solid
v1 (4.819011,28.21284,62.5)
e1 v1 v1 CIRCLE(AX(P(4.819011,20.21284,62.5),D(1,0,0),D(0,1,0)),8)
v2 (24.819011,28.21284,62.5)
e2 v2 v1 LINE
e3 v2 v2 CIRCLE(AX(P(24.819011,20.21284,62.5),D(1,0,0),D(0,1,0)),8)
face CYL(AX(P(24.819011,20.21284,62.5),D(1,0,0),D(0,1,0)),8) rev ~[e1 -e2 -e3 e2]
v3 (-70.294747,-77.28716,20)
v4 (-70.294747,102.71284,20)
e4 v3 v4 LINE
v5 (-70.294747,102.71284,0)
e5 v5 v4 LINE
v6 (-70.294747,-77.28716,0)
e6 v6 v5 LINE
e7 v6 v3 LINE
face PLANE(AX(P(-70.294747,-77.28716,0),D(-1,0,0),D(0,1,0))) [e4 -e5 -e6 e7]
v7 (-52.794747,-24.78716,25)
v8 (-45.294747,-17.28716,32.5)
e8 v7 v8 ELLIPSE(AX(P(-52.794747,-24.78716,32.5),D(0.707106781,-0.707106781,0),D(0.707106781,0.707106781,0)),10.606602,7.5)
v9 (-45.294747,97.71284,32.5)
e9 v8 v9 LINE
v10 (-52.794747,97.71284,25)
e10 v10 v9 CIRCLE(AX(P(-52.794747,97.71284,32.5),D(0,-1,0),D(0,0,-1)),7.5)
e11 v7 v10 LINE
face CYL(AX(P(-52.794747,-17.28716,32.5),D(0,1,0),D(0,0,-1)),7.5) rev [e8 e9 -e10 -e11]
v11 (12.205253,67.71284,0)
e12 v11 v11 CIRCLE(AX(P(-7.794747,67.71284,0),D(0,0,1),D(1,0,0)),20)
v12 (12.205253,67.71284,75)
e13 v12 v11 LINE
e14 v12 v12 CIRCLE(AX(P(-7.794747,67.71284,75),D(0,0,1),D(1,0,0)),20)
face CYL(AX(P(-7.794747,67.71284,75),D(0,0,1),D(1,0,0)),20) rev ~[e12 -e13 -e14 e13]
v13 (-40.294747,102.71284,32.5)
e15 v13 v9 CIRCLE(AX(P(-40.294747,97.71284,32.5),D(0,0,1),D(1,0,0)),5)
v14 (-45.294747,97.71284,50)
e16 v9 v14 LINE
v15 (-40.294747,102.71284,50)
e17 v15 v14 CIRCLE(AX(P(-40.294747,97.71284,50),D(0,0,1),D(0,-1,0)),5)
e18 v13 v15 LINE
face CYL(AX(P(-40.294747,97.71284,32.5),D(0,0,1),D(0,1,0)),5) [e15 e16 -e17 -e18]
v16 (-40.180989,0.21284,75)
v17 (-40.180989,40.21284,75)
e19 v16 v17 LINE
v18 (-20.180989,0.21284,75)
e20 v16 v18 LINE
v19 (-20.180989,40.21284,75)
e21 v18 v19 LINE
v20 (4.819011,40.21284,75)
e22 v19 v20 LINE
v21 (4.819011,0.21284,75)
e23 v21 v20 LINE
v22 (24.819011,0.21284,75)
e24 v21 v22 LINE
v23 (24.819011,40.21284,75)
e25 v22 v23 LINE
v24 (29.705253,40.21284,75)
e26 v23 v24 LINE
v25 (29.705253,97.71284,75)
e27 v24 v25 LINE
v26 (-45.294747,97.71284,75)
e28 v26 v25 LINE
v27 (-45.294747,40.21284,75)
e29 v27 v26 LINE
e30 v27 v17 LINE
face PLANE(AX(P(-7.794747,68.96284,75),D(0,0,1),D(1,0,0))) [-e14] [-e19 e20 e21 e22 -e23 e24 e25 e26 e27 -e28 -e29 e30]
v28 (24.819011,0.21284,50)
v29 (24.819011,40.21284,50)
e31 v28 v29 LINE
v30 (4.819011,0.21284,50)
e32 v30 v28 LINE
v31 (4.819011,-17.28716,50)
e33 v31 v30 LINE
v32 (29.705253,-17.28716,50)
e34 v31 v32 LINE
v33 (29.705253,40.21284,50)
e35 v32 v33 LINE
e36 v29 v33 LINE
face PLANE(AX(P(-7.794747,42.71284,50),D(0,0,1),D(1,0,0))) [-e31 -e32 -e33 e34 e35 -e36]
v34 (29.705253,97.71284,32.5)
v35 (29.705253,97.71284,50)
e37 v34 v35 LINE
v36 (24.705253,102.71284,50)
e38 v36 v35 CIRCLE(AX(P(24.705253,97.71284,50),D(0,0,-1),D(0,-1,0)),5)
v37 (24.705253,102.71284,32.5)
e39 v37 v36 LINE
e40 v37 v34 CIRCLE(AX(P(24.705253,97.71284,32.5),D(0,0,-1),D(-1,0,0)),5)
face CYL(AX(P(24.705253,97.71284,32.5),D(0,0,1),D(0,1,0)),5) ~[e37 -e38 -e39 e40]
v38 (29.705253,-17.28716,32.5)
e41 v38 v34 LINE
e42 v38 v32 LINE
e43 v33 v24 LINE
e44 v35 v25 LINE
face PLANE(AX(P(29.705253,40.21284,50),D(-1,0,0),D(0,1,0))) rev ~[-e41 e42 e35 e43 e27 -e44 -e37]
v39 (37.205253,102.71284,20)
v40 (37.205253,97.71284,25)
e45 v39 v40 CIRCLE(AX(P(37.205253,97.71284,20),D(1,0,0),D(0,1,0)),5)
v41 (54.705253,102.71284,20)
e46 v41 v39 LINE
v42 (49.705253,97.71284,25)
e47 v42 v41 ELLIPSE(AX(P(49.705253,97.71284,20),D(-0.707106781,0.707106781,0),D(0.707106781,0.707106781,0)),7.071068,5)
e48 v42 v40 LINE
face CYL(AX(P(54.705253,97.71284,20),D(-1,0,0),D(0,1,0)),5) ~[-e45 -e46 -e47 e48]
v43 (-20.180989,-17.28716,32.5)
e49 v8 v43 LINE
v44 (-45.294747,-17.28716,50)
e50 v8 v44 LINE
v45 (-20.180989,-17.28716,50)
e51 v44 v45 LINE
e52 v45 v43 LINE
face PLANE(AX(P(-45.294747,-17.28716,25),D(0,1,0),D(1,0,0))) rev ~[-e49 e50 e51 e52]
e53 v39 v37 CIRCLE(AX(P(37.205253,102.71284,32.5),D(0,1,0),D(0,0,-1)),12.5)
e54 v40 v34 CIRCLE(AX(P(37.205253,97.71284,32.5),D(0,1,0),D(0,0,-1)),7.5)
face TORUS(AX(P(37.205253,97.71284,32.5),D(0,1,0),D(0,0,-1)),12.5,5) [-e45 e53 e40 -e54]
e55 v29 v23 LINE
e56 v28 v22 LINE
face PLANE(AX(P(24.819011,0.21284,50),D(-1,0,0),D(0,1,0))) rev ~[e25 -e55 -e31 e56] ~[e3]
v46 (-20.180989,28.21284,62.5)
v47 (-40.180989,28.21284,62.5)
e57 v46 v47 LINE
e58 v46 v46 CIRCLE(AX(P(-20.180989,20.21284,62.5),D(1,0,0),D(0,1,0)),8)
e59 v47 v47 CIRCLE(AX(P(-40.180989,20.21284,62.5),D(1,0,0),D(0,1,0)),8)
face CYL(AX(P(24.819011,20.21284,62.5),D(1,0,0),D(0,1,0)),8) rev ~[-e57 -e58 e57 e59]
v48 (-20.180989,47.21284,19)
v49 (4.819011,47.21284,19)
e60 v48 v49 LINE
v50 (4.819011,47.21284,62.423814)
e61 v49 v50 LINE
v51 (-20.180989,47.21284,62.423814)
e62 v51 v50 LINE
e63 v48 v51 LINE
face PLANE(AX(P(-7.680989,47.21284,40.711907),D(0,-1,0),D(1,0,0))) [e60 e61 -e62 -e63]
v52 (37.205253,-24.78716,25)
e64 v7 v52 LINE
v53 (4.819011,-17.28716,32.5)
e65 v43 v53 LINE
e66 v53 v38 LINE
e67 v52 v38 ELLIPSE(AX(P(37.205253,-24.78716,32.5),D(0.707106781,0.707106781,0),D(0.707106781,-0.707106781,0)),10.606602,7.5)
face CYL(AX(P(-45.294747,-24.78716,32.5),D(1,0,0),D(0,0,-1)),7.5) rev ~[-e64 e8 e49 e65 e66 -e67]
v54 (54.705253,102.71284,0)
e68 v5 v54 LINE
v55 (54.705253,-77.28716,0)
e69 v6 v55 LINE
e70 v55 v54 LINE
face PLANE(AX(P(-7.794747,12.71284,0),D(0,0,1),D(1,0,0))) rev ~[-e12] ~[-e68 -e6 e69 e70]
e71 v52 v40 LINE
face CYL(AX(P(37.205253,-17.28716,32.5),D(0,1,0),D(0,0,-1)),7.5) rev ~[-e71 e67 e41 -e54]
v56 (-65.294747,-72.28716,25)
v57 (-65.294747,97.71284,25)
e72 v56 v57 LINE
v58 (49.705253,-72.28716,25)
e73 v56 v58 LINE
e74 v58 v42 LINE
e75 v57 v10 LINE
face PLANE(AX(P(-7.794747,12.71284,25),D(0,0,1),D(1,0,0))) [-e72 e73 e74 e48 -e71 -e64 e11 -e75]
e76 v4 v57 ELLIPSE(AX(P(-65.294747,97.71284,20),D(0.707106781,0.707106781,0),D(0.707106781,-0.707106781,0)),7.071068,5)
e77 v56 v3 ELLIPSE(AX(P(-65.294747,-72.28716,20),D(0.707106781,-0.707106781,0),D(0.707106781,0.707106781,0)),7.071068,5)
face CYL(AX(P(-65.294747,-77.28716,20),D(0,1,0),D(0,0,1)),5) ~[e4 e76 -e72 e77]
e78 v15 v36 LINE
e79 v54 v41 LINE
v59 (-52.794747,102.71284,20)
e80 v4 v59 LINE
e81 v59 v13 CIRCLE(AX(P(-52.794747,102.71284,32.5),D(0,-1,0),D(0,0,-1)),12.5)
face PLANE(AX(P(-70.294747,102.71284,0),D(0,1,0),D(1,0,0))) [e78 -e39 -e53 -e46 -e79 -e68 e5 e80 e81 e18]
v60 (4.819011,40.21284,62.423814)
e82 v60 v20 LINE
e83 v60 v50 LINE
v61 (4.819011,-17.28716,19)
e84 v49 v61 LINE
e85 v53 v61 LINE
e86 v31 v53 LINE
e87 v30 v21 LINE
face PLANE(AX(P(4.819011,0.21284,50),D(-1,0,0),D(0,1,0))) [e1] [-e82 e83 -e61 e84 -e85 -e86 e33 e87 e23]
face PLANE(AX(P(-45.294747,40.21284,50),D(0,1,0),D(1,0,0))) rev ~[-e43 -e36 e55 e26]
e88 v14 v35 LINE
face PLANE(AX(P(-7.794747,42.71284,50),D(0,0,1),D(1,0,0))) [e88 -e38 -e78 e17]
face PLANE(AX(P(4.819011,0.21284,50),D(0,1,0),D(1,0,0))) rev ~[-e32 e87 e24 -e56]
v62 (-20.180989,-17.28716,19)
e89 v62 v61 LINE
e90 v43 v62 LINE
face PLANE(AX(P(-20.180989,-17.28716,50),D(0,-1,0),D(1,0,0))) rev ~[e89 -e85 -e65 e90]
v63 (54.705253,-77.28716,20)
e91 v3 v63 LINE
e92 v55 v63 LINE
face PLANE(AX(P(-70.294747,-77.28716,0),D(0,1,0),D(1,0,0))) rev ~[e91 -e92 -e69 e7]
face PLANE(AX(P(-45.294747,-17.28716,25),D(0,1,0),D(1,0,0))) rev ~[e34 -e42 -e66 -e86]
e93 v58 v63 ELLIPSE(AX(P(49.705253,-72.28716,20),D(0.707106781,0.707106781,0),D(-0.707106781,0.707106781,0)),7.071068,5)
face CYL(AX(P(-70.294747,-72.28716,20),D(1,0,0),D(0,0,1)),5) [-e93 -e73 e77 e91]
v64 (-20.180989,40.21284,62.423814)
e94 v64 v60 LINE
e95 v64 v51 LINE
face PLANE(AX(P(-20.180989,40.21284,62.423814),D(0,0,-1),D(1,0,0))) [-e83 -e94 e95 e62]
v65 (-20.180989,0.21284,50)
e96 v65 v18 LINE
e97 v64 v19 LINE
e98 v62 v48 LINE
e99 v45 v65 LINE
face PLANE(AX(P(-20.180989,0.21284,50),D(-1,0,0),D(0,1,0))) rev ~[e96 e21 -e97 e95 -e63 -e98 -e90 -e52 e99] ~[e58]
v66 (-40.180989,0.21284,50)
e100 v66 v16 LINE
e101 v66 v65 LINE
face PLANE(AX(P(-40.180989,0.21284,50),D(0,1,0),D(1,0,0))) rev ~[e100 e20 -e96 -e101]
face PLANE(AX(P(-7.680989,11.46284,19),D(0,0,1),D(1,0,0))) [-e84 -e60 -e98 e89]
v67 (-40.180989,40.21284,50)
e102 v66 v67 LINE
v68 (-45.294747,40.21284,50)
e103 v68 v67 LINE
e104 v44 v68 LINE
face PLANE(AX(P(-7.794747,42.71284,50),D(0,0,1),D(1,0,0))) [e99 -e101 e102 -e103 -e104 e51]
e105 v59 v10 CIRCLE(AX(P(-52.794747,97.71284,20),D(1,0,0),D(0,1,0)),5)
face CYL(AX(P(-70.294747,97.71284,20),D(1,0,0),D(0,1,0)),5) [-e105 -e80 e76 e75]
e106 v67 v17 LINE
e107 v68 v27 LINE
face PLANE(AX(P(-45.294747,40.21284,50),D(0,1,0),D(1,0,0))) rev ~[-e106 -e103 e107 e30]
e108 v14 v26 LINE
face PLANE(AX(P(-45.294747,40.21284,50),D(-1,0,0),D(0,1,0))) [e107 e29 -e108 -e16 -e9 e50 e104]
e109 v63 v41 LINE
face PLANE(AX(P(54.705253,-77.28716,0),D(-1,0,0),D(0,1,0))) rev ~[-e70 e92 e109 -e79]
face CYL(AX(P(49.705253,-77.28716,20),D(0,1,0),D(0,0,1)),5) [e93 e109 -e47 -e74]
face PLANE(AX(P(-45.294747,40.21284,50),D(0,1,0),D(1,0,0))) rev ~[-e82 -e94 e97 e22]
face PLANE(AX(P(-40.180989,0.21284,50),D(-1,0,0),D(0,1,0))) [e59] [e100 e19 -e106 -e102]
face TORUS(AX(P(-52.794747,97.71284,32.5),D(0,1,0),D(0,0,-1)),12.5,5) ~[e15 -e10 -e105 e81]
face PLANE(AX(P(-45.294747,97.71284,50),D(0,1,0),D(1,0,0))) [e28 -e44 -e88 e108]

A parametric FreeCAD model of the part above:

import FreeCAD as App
import Part
import Sketcher
from FreeCAD import Vector


def edges_at(feature, points):
    """Names of the edges that pass closest to the given points."""
    edges = feature.Shape.Edges
    near = lambda p: min(range(len(edges)), key=lambda i: edges[i].distToShape(Part.Vertex(*p))[0])
    return sorted({f"Edge{near(p) + 1}" for p in points})

doc = App.newDocument("Part")
body = doc.addObject("PartDesign::Body", "Body")

# Sketch on XY plane
sketch1 = body.newObject("Sketcher::SketchObject", "Sketch")
sketch1.AttachmentSupport = (doc.getObject("XY_Plane"), [""])
sketch1.MapMode = "FlatFace"
sketch1.addGeometry(Part.LineSegment(Vector(-70, 103, 0), Vector(-70, -77, 0)), False)
sketch1.addGeometry(Part.LineSegment(Vector(-70, -77, 0), Vector(55, -77, 0)), False)
sketch1.addGeometry(Part.LineSegment(Vector(55, -77, 0), Vector(55, 103, 0)), False)
sketch1.addGeometry(Part.LineSegment(Vector(55, 103, 0), Vector(-70, 103, 0)), False)
sketch1.addConstraint(Sketcher.Constraint("Coincident", 0, 2, 1, 1))
sketch1.addConstraint(Sketcher.Constraint("Coincident", 1, 2, 2, 1))
sketch1.addConstraint(Sketcher.Constraint("Coincident", 2, 2, 3, 1))
sketch1.addConstraint(Sketcher.Constraint("Coincident", 3, 2, 0, 1))
sketch1.addConstraint(Sketcher.Constraint("Vertical", 0))
sketch1.addConstraint(Sketcher.Constraint("Horizontal", 1))
sketch1.addConstraint(Sketcher.Constraint("Vertical", 2))
sketch1.addConstraint(Sketcher.Constraint("Horizontal", 3))
sketch1.addConstraint(Sketcher.Constraint("DistanceX", 1, 1, 1, 2, 125.0))
sketch1.addConstraint(Sketcher.Constraint("DistanceY", 0, 2, 0, 1, 180.0))
sketch1.addConstraint(Sketcher.Constraint("DistanceY", 0, 2, -1, 1, 77.28716))
sketch1.addConstraint(Sketcher.Constraint("DistanceX", 0, 2, -1, 1, 70.294747))
pad1 = body.newObject("PartDesign::Pad", "Pad")
pad1.Profile = sketch1
pad1.Length = 25

# Sketch on XY plane
sketch2 = body.newObject("Sketcher::SketchObject", "Sketch001")
sketch2.AttachmentSupport = (doc.getObject("XY_Plane"), [""])
sketch2.MapMode = "FlatFace"
sketch2.AttachmentOffset = App.Placement(Vector(0, 0, 25), App.Rotation())
sketch2.addGeometry(Part.LineSegment(Vector(-45, 103, 0), Vector(-45, -17, 0)), False)
sketch2.addGeometry(Part.LineSegment(Vector(-45, -17, 0), Vector(30, -17, 0)), False)
sketch2.addGeometry(Part.LineSegment(Vector(30, -17, 0), Vector(30, 103, 0)), False)
sketch2.addGeometry(Part.LineSegment(Vector(30, 103, 0), Vector(-45, 103, 0)), False)
sketch2.addConstraint(Sketcher.Constraint("Coincident", 0, 2, 1, 1))
sketch2.addConstraint(Sketcher.Constraint("Coincident", 1, 2, 2, 1))
sketch2.addConstraint(Sketcher.Constraint("Coincident", 2, 2, 3, 1))
sketch2.addConstraint(Sketcher.Constraint("Coincident", 3, 2, 0, 1))
sketch2.addConstraint(Sketcher.Constraint("Vertical", 0))
sketch2.addConstraint(Sketcher.Constraint("Horizontal", 1))
sketch2.addConstraint(Sketcher.Constraint("Vertical", 2))
sketch2.addConstraint(Sketcher.Constraint("Horizontal", 3))
sketch2.addConstraint(Sketcher.Constraint("DistanceX", 1, 1, 1, 2, 75.0))
sketch2.addConstraint(Sketcher.Constraint("DistanceY", 0, 2, 0, 1, 120.0))
sketch2.addConstraint(Sketcher.Constraint("DistanceY", 0, 2, -1, 1, 17.28716))
sketch2.addConstraint(Sketcher.Constraint("DistanceX", 0, 2, -1, 1, 45.294747))
pad2 = body.newObject("PartDesign::Pad", "Pad001")
pad2.Profile = sketch2
pad2.Length = 25
doc.recompute()

fillet = body.newObject("PartDesign::Fillet", "Fillet")
fillet.Base = (pad2, edges_at(pad2, [(-45.295, 42.713, 25), (-7.795, -17.287, 25), (29.705, 42.713, 25)]))
fillet.Radius = 7.5
doc.recompute()

fillet2 = body.newObject("PartDesign::Fillet", "Fillet001")
fillet2.Base = (fillet, edges_at(fillet, [
    (54.705, 12.713, 25),
    (-61.545, 102.713, 25),
    (-45.295, 102.713, 41.25),
    (29.705, 102.713, 41.25),
    (31.902, 102.713, 27.197),
    (-47.491, 102.713, 27.197),
    (-70.295, 12.713, 25),
    (-7.795, -77.287, 25),
]))
fillet2.Radius = 5

# Sketch on XY plane
sketch3 = body.newObject("Sketcher::SketchObject", "Sketch002")
sketch3.AttachmentSupport = (doc.getObject("XY_Plane"), [""])
sketch3.MapMode = "FlatFace"
sketch3.AttachmentOffset = App.Placement(Vector(0, 0, 50), App.Rotation())
sketch3.addGeometry(Part.LineSegment(Vector(-45, 98, 0), Vector(-45, 40, 0)), False)
sketch3.addGeometry(Part.LineSegment(Vector(-45, 40, 0), Vector(30, 40, 0)), False)
sketch3.addGeometry(Part.LineSegment(Vector(30, 40, 0), Vector(30, 98, 0)), False)
sketch3.addGeometry(Part.LineSegment(Vector(30, 98, 0), Vector(-45, 98, 0)), False)
sketch3.addConstraint(Sketcher.Constraint("Coincident", 0, 2, 1, 1))
sketch3.addConstraint(Sketcher.Constraint("Coincident", 1, 2, 2, 1))
sketch3.addConstraint(Sketcher.Constraint("Coincident", 2, 2, 3, 1))
sketch3.addConstraint(Sketcher.Constraint("Coincident", 3, 2, 0, 1))
sketch3.addConstraint(Sketcher.Constraint("Vertical", 0))
sketch3.addConstraint(Sketcher.Constraint("Horizontal", 1))
sketch3.addConstraint(Sketcher.Constraint("Vertical", 2))
sketch3.addConstraint(Sketcher.Constraint("Horizontal", 3))
sketch3.addConstraint(Sketcher.Constraint("DistanceX", 1, 1, 1, 2, 75.0))
sketch3.addConstraint(Sketcher.Constraint("DistanceY", 0, 2, 0, 1, 57.5))
sketch3.addConstraint(Sketcher.Constraint("DistanceY", -1, 1, 0, 2, 40.21284))
sketch3.addConstraint(Sketcher.Constraint("DistanceX", 0, 2, -1, 1, 45.294747))
pad3 = body.newObject("PartDesign::Pad", "Pad002")
pad3.Profile = sketch3
pad3.Length = 25

# Sketch on XY plane
sketch4 = body.newObject("Sketcher::SketchObject", "Sketch003")
sketch4.AttachmentSupport = (doc.getObject("XY_Plane"), [""])
sketch4.MapMode = "FlatFace"
sketch4.AttachmentOffset = App.Placement(Vector(0, 0, 75), App.Rotation())
sketch4.addGeometry(Part.Circle(Vector(-8, 68, 0), Vector(0, 0, 1), 20), False)
sketch4.addConstraint(Sketcher.Constraint("Diameter", 0, 40.0))
sketch4.addConstraint(Sketcher.Constraint("DistanceY", -1, 1, 0, 3, 67.71284))
sketch4.addConstraint(Sketcher.Constraint("DistanceX", 0, 3, -1, 1, 7.794747))
pocket1 = body.newObject("PartDesign::Pocket", "Pocket")
pocket1.Profile = sketch4
pocket1.Length = 105

# Sketch on XY plane
sketch5 = body.newObject("Sketcher::SketchObject", "Sketch004")
sketch5.AttachmentSupport = (doc.getObject("XY_Plane"), [""])
sketch5.MapMode = "FlatFace"
sketch5.AttachmentOffset = App.Placement(Vector(0, 0, 50), App.Rotation())
sketch5.addGeometry(Part.LineSegment(Vector(-40, 40, 0), Vector(-40, 0, 0)), False)
sketch5.addGeometry(Part.LineSegment(Vector(-40, 0, 0), Vector(-20, 0, 0)), False)
sketch5.addGeometry(Part.LineSegment(Vector(-20, 0, 0), Vector(-20, 40, 0)), False)
sketch5.addGeometry(Part.LineSegment(Vector(-20, 40, 0), Vector(-40, 40, 0)), False)
sketch5.addGeometry(Part.LineSegment(Vector(5, 40, 0), Vector(5, 0, 0)), False)
sketch5.addGeometry(Part.LineSegment(Vector(5, 0, 0), Vector(25, 0, 0)), False)
sketch5.addGeometry(Part.LineSegment(Vector(25, 0, 0), Vector(25, 40, 0)), False)
sketch5.addGeometry(Part.LineSegment(Vector(25, 40, 0), Vector(5, 40, 0)), False)
sketch5.addConstraint(Sketcher.Constraint("Coincident", 0, 2, 1, 1))
sketch5.addConstraint(Sketcher.Constraint("Coincident", 1, 2, 2, 1))
sketch5.addConstraint(Sketcher.Constraint("Coincident", 2, 2, 3, 1))
sketch5.addConstraint(Sketcher.Constraint("Coincident", 3, 2, 0, 1))
sketch5.addConstraint(Sketcher.Constraint("Coincident", 4, 2, 5, 1))
sketch5.addConstraint(Sketcher.Constraint("Coincident", 5, 2, 6, 1))
sketch5.addConstraint(Sketcher.Constraint("Coincident", 6, 2, 7, 1))
sketch5.addConstraint(Sketcher.Constraint("Coincident", 7, 2, 4, 1))
sketch5.addConstraint(Sketcher.Constraint("Vertical", 0))
sketch5.addConstraint(Sketcher.Constraint("Horizontal", 1))
sketch5.addConstraint(Sketcher.Constraint("Vertical", 2))
sketch5.addConstraint(Sketcher.Constraint("Horizontal", 3))
sketch5.addConstraint(Sketcher.Constraint("Vertical", 4))
sketch5.addConstraint(Sketcher.Constraint("Horizontal", 5))
sketch5.addConstraint(Sketcher.Constraint("Vertical", 6))
sketch5.addConstraint(Sketcher.Constraint("Horizontal", 7))
sketch5.addConstraint(Sketcher.Constraint("Horizontal", 1, 2, 4, 2))
sketch5.addConstraint(Sketcher.Constraint("Horizontal", 3, 2, 6, 2))
sketch5.addConstraint(Sketcher.Constraint("Equal", 3, 5))
sketch5.addConstraint(Sketcher.Constraint("DistanceX", 1, 1, 1, 2, 20.0))
sketch5.addConstraint(Sketcher.Constraint("DistanceY", 0, 2, 0, 1, 40.0))
sketch5.addConstraint(Sketcher.Constraint("DistanceX", 1, 2, 4, 2, 25.0))
sketch5.addConstraint(Sketcher.Constraint("DistanceX", 0, 2, -1, 1, 40.180989))
sketch5.addConstraint(Sketcher.Constraint("DistanceY", -1, 1, 0, 2, 0.21284))
pad4 = body.newObject("PartDesign::Pad", "Pad003")
pad4.Profile = sketch5
pad4.Length = 25

# Sketch on YZ plane
sketch6 = body.newObject("Sketcher::SketchObject", "Sketch005")
sketch6.AttachmentSupport = (doc.getObject("YZ_Plane"), [""])
sketch6.MapMode = "FlatFace"
sketch6.AttachmentOffset = App.Placement(Vector(0, 0, 24.819011), App.Rotation())
sketch6.addGeometry(Part.Circle(Vector(20, 62, 0), Vector(0, 0, 1), 8), False)
sketch6.addConstraint(Sketcher.Constraint("Diameter", 0, 16.0))
sketch6.addConstraint(Sketcher.Constraint("DistanceY", -1, 1, 0, 3, 62.5))
sketch6.addConstraint(Sketcher.Constraint("DistanceX", -1, 1, 0, 3, 20.21284))
pocket2 = body.newObject("PartDesign::Pocket", "Pocket001")
pocket2.Profile = sketch6
pocket2.Length = 89

# Sketch on XY plane
sketch7 = body.newObject("Sketcher::SketchObject", "Sketch006")
sketch7.AttachmentSupport = (doc.getObject("XY_Plane"), [""])
sketch7.MapMode = "FlatFace"
sketch7.AttachmentOffset = App.Placement(Vector(0, 0, 50), App.Rotation())
sketch7.addGeometry(Part.LineSegment(Vector(-20, 40, 0), Vector(-20, -17, 0)), False)
sketch7.addGeometry(Part.LineSegment(Vector(-20, -17, 0), Vector(5, -17, 0)), False)
sketch7.addGeometry(Part.LineSegment(Vector(5, -17, 0), Vector(5, 40, 0)), False)
sketch7.addGeometry(Part.LineSegment(Vector(5, 40, 0), Vector(-20, 40, 0)), False)
sketch7.addConstraint(Sketcher.Constraint("Coincident", 0, 2, 1, 1))
sketch7.addConstraint(Sketcher.Constraint("Coincident", 1, 2, 2, 1))
sketch7.addConstraint(Sketcher.Constraint("Coincident", 2, 2, 3, 1))
sketch7.addConstraint(Sketcher.Constraint("Coincident", 3, 2, 0, 1))
sketch7.addConstraint(Sketcher.Constraint("Vertical", 0))
sketch7.addConstraint(Sketcher.Constraint("Horizontal", 1))
sketch7.addConstraint(Sketcher.Constraint("Vertical", 2))
sketch7.addConstraint(Sketcher.Constraint("Horizontal", 3))
sketch7.addConstraint(Sketcher.Constraint("DistanceX", 1, 1, 1, 2, 25.0))
sketch7.addConstraint(Sketcher.Constraint("DistanceY", 0, 2, 0, 1, 57.5))
sketch7.addConstraint(Sketcher.Constraint("DistanceX", 0, 2, -1, 1, 20.180989))
sketch7.addConstraint(Sketcher.Constraint("DistanceY", 0, 2, -1, 1, 17.28716))
pocket3 = body.newObject("PartDesign::Pocket", "Pocket002")
pocket3.Profile = sketch7
pocket3.Length = 31

# Sketch on XZ plane
sketch8 = body.newObject("Sketcher::SketchObject", "Sketch007")
sketch8.AttachmentSupport = (doc.getObject("XZ_Plane"), [""])
sketch8.MapMode = "FlatFace"
sketch8.AttachmentOffset = App.Placement(Vector(0, 0, -40.21284), App.Rotation())
sketch8.addGeometry(Part.LineSegment(Vector(-20, 62, 0), Vector(-20, 19, 0)), False)
sketch8.addGeometry(Part.LineSegment(Vector(-20, 19, 0), Vector(5, 19, 0)), False)
sketch8.addGeometry(Part.LineSegment(Vector(5, 19, 0), Vector(5, 62, 0)), False)
sketch8.addGeometry(Part.LineSegment(Vector(5, 62, 0), Vector(-20, 62, 0)), False)
sketch8.addConstraint(Sketcher.Constraint("Coincident", 0, 2, 1, 1))
sketch8.addConstraint(Sketcher.Constraint("Coincident", 1, 2, 2, 1))
sketch8.addConstraint(Sketcher.Constraint("Coincident", 2, 2, 3, 1))
sketch8.addConstraint(Sketcher.Constraint("Coincident", 3, 2, 0, 1))
sketch8.addConstraint(Sketcher.Constraint("Vertical", 0))
sketch8.addConstraint(Sketcher.Constraint("Horizontal", 1))
sketch8.addConstraint(Sketcher.Constraint("Vertical", 2))
sketch8.addConstraint(Sketcher.Constraint("Horizontal", 3))
sketch8.addConstraint(Sketcher.Constraint("DistanceX", 1, 1, 1, 2, 25.0))
sketch8.addConstraint(Sketcher.Constraint("DistanceY", -1, 1, 0, 2, 19.0))
sketch8.addConstraint(Sketcher.Constraint("DistanceY", 0, 2, 0, 1, 43.423814))
sketch8.addConstraint(Sketcher.Constraint("DistanceX", 0, 2, -1, 1, 20.180989))
pocket4 = body.newObject("PartDesign::Pocket", "Pocket003")
pocket4.Profile = sketch8
pocket4.Length = 7

doc.recompute()
